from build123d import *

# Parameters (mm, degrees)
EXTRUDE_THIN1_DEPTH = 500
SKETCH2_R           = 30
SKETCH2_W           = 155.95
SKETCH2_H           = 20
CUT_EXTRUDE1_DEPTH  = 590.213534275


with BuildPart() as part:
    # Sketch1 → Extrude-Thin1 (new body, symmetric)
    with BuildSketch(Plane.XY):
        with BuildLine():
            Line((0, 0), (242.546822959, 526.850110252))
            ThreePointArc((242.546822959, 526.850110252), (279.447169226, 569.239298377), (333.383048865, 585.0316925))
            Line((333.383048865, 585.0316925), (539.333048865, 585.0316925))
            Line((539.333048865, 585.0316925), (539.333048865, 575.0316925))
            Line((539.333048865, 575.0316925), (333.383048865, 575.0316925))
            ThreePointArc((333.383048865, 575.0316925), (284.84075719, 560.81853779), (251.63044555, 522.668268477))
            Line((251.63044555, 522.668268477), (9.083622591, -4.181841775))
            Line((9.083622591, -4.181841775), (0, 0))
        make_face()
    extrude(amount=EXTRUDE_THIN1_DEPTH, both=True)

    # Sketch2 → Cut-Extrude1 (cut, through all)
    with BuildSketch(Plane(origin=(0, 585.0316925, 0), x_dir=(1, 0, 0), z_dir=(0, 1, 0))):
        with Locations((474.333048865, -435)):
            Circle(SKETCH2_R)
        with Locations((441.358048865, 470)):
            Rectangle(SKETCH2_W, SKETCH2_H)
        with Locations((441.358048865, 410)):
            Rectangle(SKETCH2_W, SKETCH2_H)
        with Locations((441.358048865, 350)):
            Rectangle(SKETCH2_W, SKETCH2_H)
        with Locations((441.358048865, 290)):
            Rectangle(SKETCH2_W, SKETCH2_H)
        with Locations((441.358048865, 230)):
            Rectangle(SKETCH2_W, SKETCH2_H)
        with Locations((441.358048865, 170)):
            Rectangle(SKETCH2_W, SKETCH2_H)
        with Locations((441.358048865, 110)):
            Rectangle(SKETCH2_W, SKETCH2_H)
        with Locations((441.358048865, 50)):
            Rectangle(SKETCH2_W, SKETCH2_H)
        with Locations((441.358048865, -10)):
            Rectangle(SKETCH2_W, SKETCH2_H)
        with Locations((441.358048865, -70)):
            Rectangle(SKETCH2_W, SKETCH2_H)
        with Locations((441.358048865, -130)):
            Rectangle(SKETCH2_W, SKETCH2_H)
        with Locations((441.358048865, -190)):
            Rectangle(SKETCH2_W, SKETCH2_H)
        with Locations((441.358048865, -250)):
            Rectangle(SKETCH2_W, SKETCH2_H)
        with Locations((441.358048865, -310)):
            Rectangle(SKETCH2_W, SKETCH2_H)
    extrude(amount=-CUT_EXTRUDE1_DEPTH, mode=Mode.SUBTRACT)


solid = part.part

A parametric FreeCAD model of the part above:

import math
import FreeCAD as App
import Part
import Sketcher
from FreeCAD import Vector
Q = App.Units.Quantity

doc = App.newDocument("Part")
params = doc.addObject("Spreadsheet::Sheet", "Params")
for row, (alias, value) in enumerate([
    ("sketch1_radius", "90 mm"),
    ("sketch1_radius2", "100 mm"),
    ("sketch1_length", "580 mm"),
    ("sketch1_width", "205.95 mm"),
    ("pad1_length", "1000 mm"),
    ("sketch2_diameter", "60 mm"),
    ("sketch2_height", "20 mm"),
    ("sketch2_width", "155.95 mm"),
], start=1):
    params.set(f"A{row}", alias)
    params.set(f"B{row}", "=" + value)
    params.setAlias(f"B{row}", alias)

body = doc.addObject("PartDesign::Body", "Body")

# Sketch on XY plane
sketch1 = doc.addObject("Sketcher::SketchObject", "Sketch")
body.addObject(sketch1)
sketch1.AttachmentSupport = (doc.XY_Plane, [""])
sketch1.MapMode = "FlatFace"
sketch1.addGeometry(Part.LineSegment(Vector(243, 527, 0), Vector(0, 0, 0)), False)
sketch1.addGeometry(Part.LineSegment(Vector(0, 0, 0), Vector(9, -4, 0)), False)
sketch1.addGeometry(Part.LineSegment(Vector(9, -4, 0), Vector(252, 523, 0)), False)
sketch1.addGeometry(Part.ArcOfCircle(Part.Circle(Vector(333, 485, 0), Vector(0, 0, 1), 90), math.radians(90), math.radians(155)), False)
sketch1.addGeometry(Part.LineSegment(Vector(333, 575, 0), Vector(539, 575, 0)), False)
sketch1.addGeometry(Part.LineSegment(Vector(539, 575, 0), Vector(539, 585, 0)), False)
sketch1.addGeometry(Part.LineSegment(Vector(539, 585, 0), Vector(333, 585, 0)), False)
sketch1.addGeometry(Part.ArcOfCircle(Part.Circle(Vector(333, 485, 0), Vector(0, 0, 1), 100), math.radians(90), math.radians(155)), False)
sketch1.addConstraint(Sketcher.Constraint("Coincident", 0, 2, 1, 1))
sketch1.addConstraint(Sketcher.Constraint("Coincident", 1, 2, 2, 1))
sketch1.addConstraint(Sketcher.Constraint("Tangent", 2, 2, 3, 2))
sketch1.addConstraint(Sketcher.Constraint("Tangent", 3, 1, 4, 1))
sketch1.addConstraint(Sketcher.Constraint("Coincident", 4, 2, 5, 1))
sketch1.addConstraint(Sketcher.Constraint("Coincident", 5, 2, 6, 1))
sketch1.addConstraint(Sketcher.Constraint("Tangent", 6, 2, 7, 1))
sketch1.addConstraint(Sketcher.Constraint("Tangent", 7, 2, 0, 1))
sketch1.addConstraint(Sketcher.Constraint("Horizontal", 4))
sketch1.addConstraint(Sketcher.Constraint("Vertical", 5))
sketch1.addConstraint(Sketcher.Constraint("Horizontal", 6))
sketch1.addConstraint(Sketcher.Constraint("Coincident", 0, 2, -1, 1))
sketch1.addConstraint(Sketcher.Constraint("Coincident", 7, 3, 3, 3))
sketch1.addConstraint(Sketcher.Constraint("Perpendicular", 0, 1))
sketch1.addConstraint(Sketcher.Constraint("Perpendicular", 1, 2))
sketch1.addConstraint(Sketcher.Constraint("Radius", 3, 90.0))
sketch1.addConstraint(Sketcher.Constraint("Radius", 7, 100.0))
sketch1.addConstraint(Sketcher.Constraint("Distance", 0, 580.0))
sketch1.addConstraint(Sketcher.Constraint("DistanceX", 4, 1, 4, 2, 205.95))
sketch1.addConstraint(Sketcher.Constraint("Angle", 0, Q("-114.72 deg")))
sketch1.setExpression("Constraints[15]", "Params.sketch1_radius")
sketch1.setExpression("Constraints[16]", "Params.sketch1_radius2")
sketch1.setExpression("Constraints[17]", "Params.sketch1_length")
sketch1.setExpression("Constraints[18]", "Params.sketch1_width")
pad1 = doc.addObject("PartDesign::Pad", "Pad")
body.addObject(pad1)
pad1.Profile = sketch1
pad1.setExpression("Length", "Params.pad1_length")
pad1.Midplane = True

# Sketch on XZ plane
sketch2 = doc.addObject("Sketcher::SketchObject", "Sketch001")
body.addObject(sketch2)
sketch2.AttachmentSupport = (doc.XZ_Plane, [""])
sketch2.MapMode = "FlatFace"
sketch2.AttachmentOffset = App.Placement(Vector(0, 0, -585.031692), App.Rotation())
sketch2.addGeometry(Part.Circle(Vector(474, 435, 0), Vector(0, 0, 1), 30), False)
sketch2.addGeometry(Part.LineSegment(Vector(363, -480, 0), Vector(363, -460, 0)), False)
sketch2.addGeometry(Part.LineSegment(Vector(363, -460, 0), Vector(519, -460, 0)), False)
sketch2.addGeometry(Part.LineSegment(Vector(519, -460, 0), Vector(519, -480, 0)), False)
sketch2.addGeometry(Part.LineSegment(Vector(519, -480, 0), Vector(363, -480, 0)), False)
sketch2.addGeometry(Part.LineSegment(Vector(363, -420, 0), Vector(363, -400, 0)), False)
sketch2.addGeometry(Part.LineSegment(Vector(363, -400, 0), Vector(519, -400, 0)), False)
sketch2.addGeometry(Part.LineSegment(Vector(519, -400, 0), Vector(519, -420, 0)), False)
sketch2.addGeometry(Part.LineSegment(Vector(519, -420, 0), Vector(363, -420, 0)), False)
sketch2.addGeometry(Part.LineSegment(Vector(363, -360, 0), Vector(363, -340, 0)), False)
sketch2.addGeometry(Part.LineSegment(Vector(363, -340, 0), Vector(519, -340, 0)), False)
sketch2.addGeometry(Part.LineSegment(Vector(519, -340, 0), Vector(519, -360, 0)), False)
sketch2.addGeometry(Part.LineSegment(Vector(519, -360, 0), Vector(363, -360, 0)), False)
sketch2.addGeometry(Part.LineSegment(Vector(363, -300, 0), Vector(363, -280, 0)), False)
sketch2.addGeometry(Part.LineSegment(Vector(363, -280, 0), Vector(519, -280, 0)), False)
sketch2.addGeometry(Part.LineSegment(Vector(519, -280, 0), Vector(519, -300, 0)), False)
sketch2.addGeometry(Part.LineSegment(Vector(519, -300, 0), Vector(363, -300, 0)), False)
sketch2.addGeometry(Part.LineSegment(Vector(363, -240, 0), Vector(363, -220, 0)), False)
sketch2.addGeometry(Part.LineSegment(Vector(363, -220, 0), Vector(519, -220, 0)), False)
sketch2.addGeometry(Part.LineSegment(Vector(519, -220, 0), Vector(519, -240, 0)), False)
sketch2.addGeometry(Part.LineSegment(Vector(519, -240, 0), Vector(363, -240, 0)), False)
sketch2.addGeometry(Part.LineSegment(Vector(363, -180, 0), Vector(363, -160, 0)), False)
sketch2.addGeometry(Part.LineSegment(Vector(363, -160, 0), Vector(519, -160, 0)), False)
sketch2.addGeometry(Part.LineSegment(Vector(519, -160, 0), Vector(519, -180, 0)), False)
sketch2.addGeometry(Part.LineSegment(Vector(519, -180, 0), Vector(363, -180, 0)), False)
sketch2.addGeometry(Part.LineSegment(Vector(363, -120, 0), Vector(363, -100, 0)), False)
sketch2.addGeometry(Part.LineSegment(Vector(363, -100, 0), Vector(519, -100, 0)), False)
sketch2.addGeometry(Part.LineSegment(Vector(519, -100, 0), Vector(519, -120, 0)), False)
sketch2.addGeometry(Part.LineSegment(Vector(519, -120, 0), Vector(363, -120, 0)), False)
sketch2.addGeometry(Part.LineSegment(Vector(363, -60, 0), Vector(363, -40, 0)), False)
sketch2.addGeometry(Part.LineSegment(Vector(363, -40, 0), Vector(519, -40, 0)), False)
sketch2.addGeometry(Part.LineSegment(Vector(519, -40, 0), Vector(519, -60, 0)), False)
sketch2.addGeometry(Part.LineSegment(Vector(519, -60, 0), Vector(363, -60, 0)), False)
sketch2.addGeometry(Part.LineSegment(Vector(363, 0, 0), Vector(363, 20, 0)), False)
sketch2.addGeometry(Part.LineSegment(Vector(363, 20, 0), Vector(519, 20, 0)), False)
sketch2.addGeometry(Part.LineSegment(Vector(519, 20, 0), Vector(519, 0, 0)), False)
sketch2.addGeometry(Part.LineSegment(Vector(519, 0, 0), Vector(363, 0, 0)), False)
sketch2.addGeometry(Part.LineSegment(Vector(363, 60, 0), Vector(363, 80, 0)), False)
sketch2.addGeometry(Part.LineSegment(Vector(363, 80, 0), Vector(519, 80, 0)), False)
sketch2.addGeometry(Part.LineSegment(Vector(519, 80, 0), Vector(519, 60, 0)), False)
sketch2.addGeometry(Part.LineSegment(Vector(519, 60, 0), Vector(363, 60, 0)), False)
sketch2.addGeometry(Part.LineSegment(Vector(363, 120, 0), Vector(363, 140, 0)), False)
sketch2.addGeometry(Part.LineSegment(Vector(363, 140, 0), Vector(519, 140, 0)), False)
sketch2.addGeometry(Part.LineSegment(Vector(519, 140, 0), Vector(519, 120, 0)), False)
sketch2.addGeometry(Part.LineSegment(Vector(519, 120, 0), Vector(363, 120, 0)), False)
sketch2.addGeometry(Part.LineSegment(Vector(363, 180, 0), Vector(363, 200, 0)), False)
sketch2.addGeometry(Part.LineSegment(Vector(363, 200, 0), Vector(519, 200, 0)), False)
sketch2.addGeometry(Part.LineSegment(Vector(519, 200, 0), Vector(519, 180, 0)), False)
sketch2.addGeometry(Part.LineSegment(Vector(519, 180, 0), Vector(363, 180, 0)), False)
sketch2.addGeometry(Part.LineSegment(Vector(363, 240, 0), Vector(363, 260, 0)), False)
sketch2.addGeometry(Part.LineSegment(Vector(363, 260, 0), Vector(519, 260, 0)), False)
sketch2.addGeometry(Part.LineSegment(Vector(519, 260, 0), Vector(519, 240, 0)), False)
sketch2.addGeometry(Part.LineSegment(Vector(519, 240, 0), Vector(363, 240, 0)), False)
sketch2.addGeometry(Part.LineSegment(Vector(363, 300, 0), Vector(363, 320, 0)), False)
sketch2.addGeometry(Part.LineSegment(Vector(363, 320, 0), Vector(519, 320, 0)), False)
sketch2.addGeometry(Part.LineSegment(Vector(519, 320, 0), Vector(519, 300, 0)), False)
sketch2.addGeometry(Part.LineSegment(Vector(519, 300, 0), Vector(363, 300, 0)), False)
sketch2.addConstraint(Sketcher.Constraint("Coincident", 1, 2, 2, 1))
sketch2.addConstraint(Sketcher.Constraint("Coincident", 2, 2, 3, 1))
sketch2.addConstraint(Sketcher.Constraint("Coincident", 3, 2, 4, 1))
sketch2.addConstraint(Sketcher.Constraint("Coincident", 4, 2, 1, 1))
sketch2.addConstraint(Sketcher.Constraint("Coincident", 5, 2, 6, 1))
sketch2.addConstraint(Sketcher.Constraint("Coincident", 6, 2, 7, 1))
sketch2.addConstraint(Sketcher.Constraint("Coincident", 7, 2, 8, 1))
sketch2.addConstraint(Sketcher.Constraint("Coincident", 8, 2, 5, 1))
sketch2.addConstraint(Sketcher.Constraint("Coincident", 9, 2, 10, 1))
sketch2.addConstraint(Sketcher.Constraint("Coincident", 10, 2, 11, 1))
sketch2.addConstraint(Sketcher.Constraint("Coincident", 11, 2, 12, 1))
sketch2.addConstraint(Sketcher.Constraint("Coincident", 12, 2, 9, 1))
sketch2.addConstraint(Sketcher.Constraint("Coincident", 13, 2, 14, 1))
sketch2.addConstraint(Sketcher.Constraint("Coincident", 14, 2, 15, 1))
sketch2.addConstraint(Sketcher.Constraint("Coincident", 15, 2, 16, 1))
sketch2.addConstraint(Sketcher.Constraint("Coincident", 16, 2, 13, 1))
sketch2.addConstraint(Sketcher.Constraint("Coincident", 17, 2, 18, 1))
sketch2.addConstraint(Sketcher.Constraint("Coincident", 18, 2, 19, 1))
sketch2.addConstraint(Sketcher.Constraint("Coincident", 19, 2, 20, 1))
sketch2.addConstraint(Sketcher.Constraint("Coincident", 20, 2, 17, 1))
sketch2.addConstraint(Sketcher.Constraint("Coincident", 21, 2, 22, 1))
sketch2.addConstraint(Sketcher.Constraint("Coincident", 22, 2, 23, 1))
sketch2.addConstraint(Sketcher.Constraint("Coincident", 23, 2, 24, 1))
sketch2.addConstraint(Sketcher.Constraint("Coincident", 24, 2, 21, 1))
sketch2.addConstraint(Sketcher.Constraint("Coincident", 25, 2, 26, 1))
sketch2.addConstraint(Sketcher.Constraint("Coincident", 26, 2, 27, 1))
sketch2.addConstraint(Sketcher.Constraint("Coincident", 27, 2, 28, 1))
sketch2.addConstraint(Sketcher.Constraint("Coincident", 28, 2, 25, 1))
sketch2.addConstraint(Sketcher.Constraint("Coincident", 29, 2, 30, 1))
sketch2.addConstraint(Sketcher.Constraint("Coincident", 30, 2, 31, 1))
sketch2.addConstraint(Sketcher.Constraint("Coincident", 31, 2, 32, 1))
sketch2.addConstraint(Sketcher.Constraint("Coincident", 32, 2, 29, 1))
sketch2.addConstraint(Sketcher.Constraint("Coincident", 33, 2, 34, 1))
sketch2.addConstraint(Sketcher.Constraint("Coincident", 34, 2, 35, 1))
sketch2.addConstraint(Sketcher.Constraint("Coincident", 35, 2, 36, 1))
sketch2.addConstraint(Sketcher.Constraint("Coincident", 36, 2, 33, 1))
sketch2.addConstraint(Sketcher.Constraint("Coincident", 37, 2, 38, 1))
sketch2.addConstraint(Sketcher.Constraint("Coincident", 38, 2, 39, 1))
sketch2.addConstraint(Sketcher.Constraint("Coincident", 39, 2, 40, 1))
sketch2.addConstraint(Sketcher.Constraint("Coincident", 40, 2, 37, 1))
sketch2.addConstraint(Sketcher.Constraint("Coincident", 41, 2, 42, 1))
sketch2.addConstraint(Sketcher.Constraint("Coincident", 42, 2, 43, 1))
sketch2.addConstraint(Sketcher.Constraint("Coincident", 43, 2, 44, 1))
sketch2.addConstraint(Sketcher.Constraint("Coincident", 44, 2, 41, 1))
sketch2.addConstraint(Sketcher.Constraint("Coincident", 45, 2, 46, 1))
sketch2.addConstraint(Sketcher.Constraint("Coincident", 46, 2, 47, 1))
sketch2.addConstraint(Sketcher.Constraint("Coincident", 47, 2, 48, 1))
sketch2.addConstraint(Sketcher.Constraint("Coincident", 48, 2, 45, 1))
sketch2.addConstraint(Sketcher.Constraint("Coincident", 49, 2, 50, 1))
sketch2.addConstraint(Sketcher.Constraint("Coincident", 50, 2, 51, 1))
sketch2.addConstraint(Sketcher.Constraint("Coincident", 51, 2, 52, 1))
sketch2.addConstraint(Sketcher.Constraint("Coincident", 52, 2, 49, 1))
sketch2.addConstraint(Sketcher.Constraint("Coincident", 53, 2, 54, 1))
sketch2.addConstraint(Sketcher.Constraint("Coincident", 54, 2, 55, 1))
sketch2.addConstraint(Sketcher.Constraint("Coincident", 55, 2, 56, 1))
sketch2.addConstraint(Sketcher.Constraint("Coincident", 56, 2, 53, 1))
sketch2.addConstraint(Sketcher.Constraint("Vertical", 1))
sketch2.addConstraint(Sketcher.Constraint("Horizontal", 2))
sketch2.addConstraint(Sketcher.Constraint("Vertical", 3))
sketch2.addConstraint(Sketcher.Constraint("Horizontal", 4))
sketch2.addConstraint(Sketcher.Constraint("Vertical", 5))
sketch2.addConstraint(Sketcher.Constraint("Horizontal", 6))
sketch2.addConstraint(Sketcher.Constraint("Vertical", 7))
sketch2.addConstraint(Sketcher.Constraint("Horizontal", 8))
sketch2.addConstraint(Sketcher.Constraint("Vertical", 9))
sketch2.addConstraint(Sketcher.Constraint("Horizontal", 10))
sketch2.addConstraint(Sketcher.Constraint("Vertical", 11))
sketch2.addConstraint(Sketcher.Constraint("Horizontal", 12))
sketch2.addConstraint(Sketcher.Constraint("Vertical", 13))
sketch2.addConstraint(Sketcher.Constraint("Horizontal", 14))
sketch2.addConstraint(Sketcher.Constraint("Vertical", 15))
sketch2.addConstraint(Sketcher.Constraint("Horizontal", 16))
sketch2.addConstraint(Sketcher.Constraint("Vertical", 17))
sketch2.addConstraint(Sketcher.Constraint("Horizontal", 18))
sketch2.addConstraint(Sketcher.Constraint("Vertical", 19))
sketch2.addConstraint(Sketcher.Constraint("Horizontal", 20))
sketch2.addConstraint(Sketcher.Constraint("Vertical", 21))
sketch2.addConstraint(Sketcher.Constraint("Horizontal", 22))
sketch2.addConstraint(Sketcher.Constraint("Vertical", 23))
sketch2.addConstraint(Sketcher.Constraint("Horizontal", 24))
sketch2.addConstraint(Sketcher.Constraint("Vertical", 25))
sketch2.addConstraint(Sketcher.Constraint("Horizontal", 26))
sketch2.addConstraint(Sketcher.Constraint("Vertical", 27))
sketch2.addConstraint(Sketcher.Constraint("Horizontal", 28))
sketch2.addConstraint(Sketcher.Constraint("Vertical", 29))
sketch2.addConstraint(Sketcher.Constraint("Horizontal", 30))
sketch2.addConstraint(Sketcher.Constraint("Vertical", 31))
sketch2.addConstraint(Sketcher.Constraint("Horizontal", 32))
sketch2.addConstraint(Sketcher.Constraint("Vertical", 33))
sketch2.addConstraint(Sketcher.Constraint("Horizontal", 34))
sketch2.addConstraint(Sketcher.Constraint("Vertical", 35))
sketch2.addConstraint(Sketcher.Constraint("Horizontal", 36))
sketch2.addConstraint(Sketcher.Constraint("Vertical", 37))
sketch2.addConstraint(Sketcher.Constraint("Horizontal", 38))
sketch2.addConstraint(Sketcher.Constraint("Vertical", 39))
sketch2.addConstraint(Sketcher.Constraint("Horizontal", 40))
sketch2.addConstraint(Sketcher.Constraint("Vertical", 41))
sketch2.addConstraint(Sketcher.Constraint("Horizontal", 42))
sketch2.addConstraint(Sketcher.Constraint("Vertical", 43))
sketch2.addConstraint(Sketcher.Constraint("Horizontal", 44))
sketch2.addConstraint(Sketcher.Constraint("Vertical", 45))
sketch2.addConstraint(Sketcher.Constraint("Horizontal", 46))
sketch2.addConstraint(Sketcher.Constraint("Vertical", 47))
sketch2.addConstraint(Sketcher.Constraint("Horizontal", 48))
sketch2.addConstraint(Sketcher.Constraint("Vertical", 49))
sketch2.addConstraint(Sketcher.Constraint("Horizontal", 50))
sketch2.addConstraint(Sketcher.Constraint("Vertical", 51))
sketch2.addConstraint(Sketcher.Constraint("Horizontal", 52))
sketch2.addConstraint(Sketcher.Constraint("Vertical", 53))
sketch2.addConstraint(Sketcher.Constraint("Horizontal", 54))
sketch2.addConstraint(Sketcher.Constraint("Vertical", 55))
sketch2.addConstraint(Sketcher.Constraint("Horizontal", 56))
sketch2.addConstraint(Sketcher.Constraint("Symmetric", 31, 2, 39, 2, -1))
sketch2.addConstraint(Sketcher.Constraint("Symmetric", 27, 2, 43, 2, -1))
sketch2.addConstraint(Sketcher.Constraint("Symmetric", 23, 2, 47, 2, -1))
sketch2.addConstraint(Sketcher.Constraint("Symmetric", 19, 2, 51, 2, -1))
sketch2.addConstraint(Sketcher.Constraint("Symmetric", 15, 2, 55, 2, -1))
sketch2.addConstraint(Sketcher.Constraint("PointOnObject", 35, 2, -1))
sketch2.addConstraint(Sketcher.Constraint("Vertical", 4, 2, 5, 2))
sketch2.addConstraint(Sketcher.Constraint("Vertical", 3, 2, 6, 2))
sketch2.addConstraint(Sketcher.Constraint("Vertical", 8, 2, 9, 2))
sketch2.addConstraint(Sketcher.Constraint("Vertical", 7, 2, 10, 2))
sketch2.addConstraint(Sketcher.Constraint("Vertical", 12, 2, 13, 2))
sketch2.addConstraint(Sketcher.Constraint("Vertical", 11, 2, 14, 2))
sketch2.addConstraint(Sketcher.Constraint("Vertical", 16, 2, 17, 2))
sketch2.addConstraint(Sketcher.Constraint("Vertical", 15, 2, 18, 2))
sketch2.addConstraint(Sketcher.Constraint("Vertical", 20, 2, 21, 2))
sketch2.addConstraint(Sketcher.Constraint("Vertical", 19, 2, 22, 2))
sketch2.addConstraint(Sketcher.Constraint("Vertical", 24, 2, 25, 2))
sketch2.addConstraint(Sketcher.Constraint("Vertical", 23, 2, 26, 2))
sketch2.addConstraint(Sketcher.Constraint("Vertical", 28, 2, 29, 2))
sketch2.addConstraint(Sketcher.Constraint("Vertical", 27, 2, 30, 2))
sketch2.addConstraint(Sketcher.Constraint("Vertical", 32, 2, 33, 2))
sketch2.addConstraint(Sketcher.Constraint("Vertical", 31, 2, 34, 2))
sketch2.addConstraint(Sketcher.Constraint("Vertical", 36, 2, 37, 2))
sketch2.addConstraint(Sketcher.Constraint("Vertical", 40, 2, 41, 2))
sketch2.addConstraint(Sketcher.Constraint("Vertical", 44, 2, 45, 2))
sketch2.addConstraint(Sketcher.Constraint("Vertical", 48, 2, 49, 2))
sketch2.addConstraint(Sketcher.Constraint("Vertical", 52, 2, 53, 2))
sketch2.addConstraint(Sketcher.Constraint("Equal", 3, 5))
sketch2.addConstraint(Sketcher.Constraint("Equal", 7, 9))
sketch2.addConstraint(Sketcher.Constraint("Equal", 11, 13))
sketch2.addConstraint(Sketcher.Constraint("Equal", 15, 17))
sketch2.addConstraint(Sketcher.Constraint("Equal", 19, 21))
sketch2.addConstraint(Sketcher.Constraint("Equal", 23, 25))
sketch2.addConstraint(Sketcher.Constraint("Equal", 27, 29))
sketch2.addConstraint(Sketcher.Constraint("Equal", 31, 33))
sketch2.addConstraint(Sketcher.Constraint("Equal", 35, 37))
sketch2.addConstraint(Sketcher.Constraint("Equal", 39, 41))
sketch2.addConstraint(Sketcher.Constraint("Equal", 43, 45))
sketch2.addConstraint(Sketcher.Constraint("Equal", 47, 49))
sketch2.addConstraint(Sketcher.Constraint("Equal", 51, 53))
sketch2.addConstraint(Sketcher.Constraint("Diameter", 0, 60.0))
sketch2.addConstraint(Sketcher.Constraint("DistanceY", 1, 1, 1, 2, 20.0))
sketch2.addConstraint(Sketcher.Constraint("DistanceY", -1, 1, 0, 3, 435.0))
sketch2.addConstraint(Sketcher.Constraint("DistanceY", 1, 2, -1, 1, 460.0))
sketch2.addConstraint(Sketcher.Constraint("DistanceY", 5, 2, -1, 1, 400.0))
sketch2.addConstraint(Sketcher.Constraint("DistanceY", 9, 2, -1, 1, 340.0))
sketch2.addConstraint(Sketcher.Constraint("DistanceY", 13, 2, -1, 1, 280.0))
sketch2.addConstraint(Sketcher.Constraint("DistanceY", 17, 2, -1, 1, 220.0))
sketch2.addConstraint(Sketcher.Constraint("DistanceY", 21, 2, -1, 1, 160.0))
sketch2.addConstraint(Sketcher.Constraint("DistanceY", 25, 2, -1, 1, 100.0))
sketch2.addConstraint(Sketcher.Constraint("DistanceY", 29, 2, -1, 1, 40.0))
sketch2.addConstraint(Sketcher.Constraint("DistanceX", 0, 3, 2, 2, 45.0))
sketch2.addConstraint(Sketcher.Constraint("DistanceX", 2, 1, 2, 2, 155.95))
sketch2.addConstraint(Sketcher.Constraint("DistanceX", -1, 1, 0, 3, 474.333049))
sketch2.setExpression("Constraints[152]", "Params.sketch2_diameter")
sketch2.setExpression("Constraints[153]", "Params.sketch2_height")
sketch2.setExpression("Constraints[164]", "Params.sketch2_width")
pocket1 = doc.addObject("PartDesign::Pocket", "Pocket")
body.addObject(pocket1)
pocket1.Profile = sketch2
pocket1.Type = "ThroughAll"
pocket1.Reversed = True

doc.recompute()
